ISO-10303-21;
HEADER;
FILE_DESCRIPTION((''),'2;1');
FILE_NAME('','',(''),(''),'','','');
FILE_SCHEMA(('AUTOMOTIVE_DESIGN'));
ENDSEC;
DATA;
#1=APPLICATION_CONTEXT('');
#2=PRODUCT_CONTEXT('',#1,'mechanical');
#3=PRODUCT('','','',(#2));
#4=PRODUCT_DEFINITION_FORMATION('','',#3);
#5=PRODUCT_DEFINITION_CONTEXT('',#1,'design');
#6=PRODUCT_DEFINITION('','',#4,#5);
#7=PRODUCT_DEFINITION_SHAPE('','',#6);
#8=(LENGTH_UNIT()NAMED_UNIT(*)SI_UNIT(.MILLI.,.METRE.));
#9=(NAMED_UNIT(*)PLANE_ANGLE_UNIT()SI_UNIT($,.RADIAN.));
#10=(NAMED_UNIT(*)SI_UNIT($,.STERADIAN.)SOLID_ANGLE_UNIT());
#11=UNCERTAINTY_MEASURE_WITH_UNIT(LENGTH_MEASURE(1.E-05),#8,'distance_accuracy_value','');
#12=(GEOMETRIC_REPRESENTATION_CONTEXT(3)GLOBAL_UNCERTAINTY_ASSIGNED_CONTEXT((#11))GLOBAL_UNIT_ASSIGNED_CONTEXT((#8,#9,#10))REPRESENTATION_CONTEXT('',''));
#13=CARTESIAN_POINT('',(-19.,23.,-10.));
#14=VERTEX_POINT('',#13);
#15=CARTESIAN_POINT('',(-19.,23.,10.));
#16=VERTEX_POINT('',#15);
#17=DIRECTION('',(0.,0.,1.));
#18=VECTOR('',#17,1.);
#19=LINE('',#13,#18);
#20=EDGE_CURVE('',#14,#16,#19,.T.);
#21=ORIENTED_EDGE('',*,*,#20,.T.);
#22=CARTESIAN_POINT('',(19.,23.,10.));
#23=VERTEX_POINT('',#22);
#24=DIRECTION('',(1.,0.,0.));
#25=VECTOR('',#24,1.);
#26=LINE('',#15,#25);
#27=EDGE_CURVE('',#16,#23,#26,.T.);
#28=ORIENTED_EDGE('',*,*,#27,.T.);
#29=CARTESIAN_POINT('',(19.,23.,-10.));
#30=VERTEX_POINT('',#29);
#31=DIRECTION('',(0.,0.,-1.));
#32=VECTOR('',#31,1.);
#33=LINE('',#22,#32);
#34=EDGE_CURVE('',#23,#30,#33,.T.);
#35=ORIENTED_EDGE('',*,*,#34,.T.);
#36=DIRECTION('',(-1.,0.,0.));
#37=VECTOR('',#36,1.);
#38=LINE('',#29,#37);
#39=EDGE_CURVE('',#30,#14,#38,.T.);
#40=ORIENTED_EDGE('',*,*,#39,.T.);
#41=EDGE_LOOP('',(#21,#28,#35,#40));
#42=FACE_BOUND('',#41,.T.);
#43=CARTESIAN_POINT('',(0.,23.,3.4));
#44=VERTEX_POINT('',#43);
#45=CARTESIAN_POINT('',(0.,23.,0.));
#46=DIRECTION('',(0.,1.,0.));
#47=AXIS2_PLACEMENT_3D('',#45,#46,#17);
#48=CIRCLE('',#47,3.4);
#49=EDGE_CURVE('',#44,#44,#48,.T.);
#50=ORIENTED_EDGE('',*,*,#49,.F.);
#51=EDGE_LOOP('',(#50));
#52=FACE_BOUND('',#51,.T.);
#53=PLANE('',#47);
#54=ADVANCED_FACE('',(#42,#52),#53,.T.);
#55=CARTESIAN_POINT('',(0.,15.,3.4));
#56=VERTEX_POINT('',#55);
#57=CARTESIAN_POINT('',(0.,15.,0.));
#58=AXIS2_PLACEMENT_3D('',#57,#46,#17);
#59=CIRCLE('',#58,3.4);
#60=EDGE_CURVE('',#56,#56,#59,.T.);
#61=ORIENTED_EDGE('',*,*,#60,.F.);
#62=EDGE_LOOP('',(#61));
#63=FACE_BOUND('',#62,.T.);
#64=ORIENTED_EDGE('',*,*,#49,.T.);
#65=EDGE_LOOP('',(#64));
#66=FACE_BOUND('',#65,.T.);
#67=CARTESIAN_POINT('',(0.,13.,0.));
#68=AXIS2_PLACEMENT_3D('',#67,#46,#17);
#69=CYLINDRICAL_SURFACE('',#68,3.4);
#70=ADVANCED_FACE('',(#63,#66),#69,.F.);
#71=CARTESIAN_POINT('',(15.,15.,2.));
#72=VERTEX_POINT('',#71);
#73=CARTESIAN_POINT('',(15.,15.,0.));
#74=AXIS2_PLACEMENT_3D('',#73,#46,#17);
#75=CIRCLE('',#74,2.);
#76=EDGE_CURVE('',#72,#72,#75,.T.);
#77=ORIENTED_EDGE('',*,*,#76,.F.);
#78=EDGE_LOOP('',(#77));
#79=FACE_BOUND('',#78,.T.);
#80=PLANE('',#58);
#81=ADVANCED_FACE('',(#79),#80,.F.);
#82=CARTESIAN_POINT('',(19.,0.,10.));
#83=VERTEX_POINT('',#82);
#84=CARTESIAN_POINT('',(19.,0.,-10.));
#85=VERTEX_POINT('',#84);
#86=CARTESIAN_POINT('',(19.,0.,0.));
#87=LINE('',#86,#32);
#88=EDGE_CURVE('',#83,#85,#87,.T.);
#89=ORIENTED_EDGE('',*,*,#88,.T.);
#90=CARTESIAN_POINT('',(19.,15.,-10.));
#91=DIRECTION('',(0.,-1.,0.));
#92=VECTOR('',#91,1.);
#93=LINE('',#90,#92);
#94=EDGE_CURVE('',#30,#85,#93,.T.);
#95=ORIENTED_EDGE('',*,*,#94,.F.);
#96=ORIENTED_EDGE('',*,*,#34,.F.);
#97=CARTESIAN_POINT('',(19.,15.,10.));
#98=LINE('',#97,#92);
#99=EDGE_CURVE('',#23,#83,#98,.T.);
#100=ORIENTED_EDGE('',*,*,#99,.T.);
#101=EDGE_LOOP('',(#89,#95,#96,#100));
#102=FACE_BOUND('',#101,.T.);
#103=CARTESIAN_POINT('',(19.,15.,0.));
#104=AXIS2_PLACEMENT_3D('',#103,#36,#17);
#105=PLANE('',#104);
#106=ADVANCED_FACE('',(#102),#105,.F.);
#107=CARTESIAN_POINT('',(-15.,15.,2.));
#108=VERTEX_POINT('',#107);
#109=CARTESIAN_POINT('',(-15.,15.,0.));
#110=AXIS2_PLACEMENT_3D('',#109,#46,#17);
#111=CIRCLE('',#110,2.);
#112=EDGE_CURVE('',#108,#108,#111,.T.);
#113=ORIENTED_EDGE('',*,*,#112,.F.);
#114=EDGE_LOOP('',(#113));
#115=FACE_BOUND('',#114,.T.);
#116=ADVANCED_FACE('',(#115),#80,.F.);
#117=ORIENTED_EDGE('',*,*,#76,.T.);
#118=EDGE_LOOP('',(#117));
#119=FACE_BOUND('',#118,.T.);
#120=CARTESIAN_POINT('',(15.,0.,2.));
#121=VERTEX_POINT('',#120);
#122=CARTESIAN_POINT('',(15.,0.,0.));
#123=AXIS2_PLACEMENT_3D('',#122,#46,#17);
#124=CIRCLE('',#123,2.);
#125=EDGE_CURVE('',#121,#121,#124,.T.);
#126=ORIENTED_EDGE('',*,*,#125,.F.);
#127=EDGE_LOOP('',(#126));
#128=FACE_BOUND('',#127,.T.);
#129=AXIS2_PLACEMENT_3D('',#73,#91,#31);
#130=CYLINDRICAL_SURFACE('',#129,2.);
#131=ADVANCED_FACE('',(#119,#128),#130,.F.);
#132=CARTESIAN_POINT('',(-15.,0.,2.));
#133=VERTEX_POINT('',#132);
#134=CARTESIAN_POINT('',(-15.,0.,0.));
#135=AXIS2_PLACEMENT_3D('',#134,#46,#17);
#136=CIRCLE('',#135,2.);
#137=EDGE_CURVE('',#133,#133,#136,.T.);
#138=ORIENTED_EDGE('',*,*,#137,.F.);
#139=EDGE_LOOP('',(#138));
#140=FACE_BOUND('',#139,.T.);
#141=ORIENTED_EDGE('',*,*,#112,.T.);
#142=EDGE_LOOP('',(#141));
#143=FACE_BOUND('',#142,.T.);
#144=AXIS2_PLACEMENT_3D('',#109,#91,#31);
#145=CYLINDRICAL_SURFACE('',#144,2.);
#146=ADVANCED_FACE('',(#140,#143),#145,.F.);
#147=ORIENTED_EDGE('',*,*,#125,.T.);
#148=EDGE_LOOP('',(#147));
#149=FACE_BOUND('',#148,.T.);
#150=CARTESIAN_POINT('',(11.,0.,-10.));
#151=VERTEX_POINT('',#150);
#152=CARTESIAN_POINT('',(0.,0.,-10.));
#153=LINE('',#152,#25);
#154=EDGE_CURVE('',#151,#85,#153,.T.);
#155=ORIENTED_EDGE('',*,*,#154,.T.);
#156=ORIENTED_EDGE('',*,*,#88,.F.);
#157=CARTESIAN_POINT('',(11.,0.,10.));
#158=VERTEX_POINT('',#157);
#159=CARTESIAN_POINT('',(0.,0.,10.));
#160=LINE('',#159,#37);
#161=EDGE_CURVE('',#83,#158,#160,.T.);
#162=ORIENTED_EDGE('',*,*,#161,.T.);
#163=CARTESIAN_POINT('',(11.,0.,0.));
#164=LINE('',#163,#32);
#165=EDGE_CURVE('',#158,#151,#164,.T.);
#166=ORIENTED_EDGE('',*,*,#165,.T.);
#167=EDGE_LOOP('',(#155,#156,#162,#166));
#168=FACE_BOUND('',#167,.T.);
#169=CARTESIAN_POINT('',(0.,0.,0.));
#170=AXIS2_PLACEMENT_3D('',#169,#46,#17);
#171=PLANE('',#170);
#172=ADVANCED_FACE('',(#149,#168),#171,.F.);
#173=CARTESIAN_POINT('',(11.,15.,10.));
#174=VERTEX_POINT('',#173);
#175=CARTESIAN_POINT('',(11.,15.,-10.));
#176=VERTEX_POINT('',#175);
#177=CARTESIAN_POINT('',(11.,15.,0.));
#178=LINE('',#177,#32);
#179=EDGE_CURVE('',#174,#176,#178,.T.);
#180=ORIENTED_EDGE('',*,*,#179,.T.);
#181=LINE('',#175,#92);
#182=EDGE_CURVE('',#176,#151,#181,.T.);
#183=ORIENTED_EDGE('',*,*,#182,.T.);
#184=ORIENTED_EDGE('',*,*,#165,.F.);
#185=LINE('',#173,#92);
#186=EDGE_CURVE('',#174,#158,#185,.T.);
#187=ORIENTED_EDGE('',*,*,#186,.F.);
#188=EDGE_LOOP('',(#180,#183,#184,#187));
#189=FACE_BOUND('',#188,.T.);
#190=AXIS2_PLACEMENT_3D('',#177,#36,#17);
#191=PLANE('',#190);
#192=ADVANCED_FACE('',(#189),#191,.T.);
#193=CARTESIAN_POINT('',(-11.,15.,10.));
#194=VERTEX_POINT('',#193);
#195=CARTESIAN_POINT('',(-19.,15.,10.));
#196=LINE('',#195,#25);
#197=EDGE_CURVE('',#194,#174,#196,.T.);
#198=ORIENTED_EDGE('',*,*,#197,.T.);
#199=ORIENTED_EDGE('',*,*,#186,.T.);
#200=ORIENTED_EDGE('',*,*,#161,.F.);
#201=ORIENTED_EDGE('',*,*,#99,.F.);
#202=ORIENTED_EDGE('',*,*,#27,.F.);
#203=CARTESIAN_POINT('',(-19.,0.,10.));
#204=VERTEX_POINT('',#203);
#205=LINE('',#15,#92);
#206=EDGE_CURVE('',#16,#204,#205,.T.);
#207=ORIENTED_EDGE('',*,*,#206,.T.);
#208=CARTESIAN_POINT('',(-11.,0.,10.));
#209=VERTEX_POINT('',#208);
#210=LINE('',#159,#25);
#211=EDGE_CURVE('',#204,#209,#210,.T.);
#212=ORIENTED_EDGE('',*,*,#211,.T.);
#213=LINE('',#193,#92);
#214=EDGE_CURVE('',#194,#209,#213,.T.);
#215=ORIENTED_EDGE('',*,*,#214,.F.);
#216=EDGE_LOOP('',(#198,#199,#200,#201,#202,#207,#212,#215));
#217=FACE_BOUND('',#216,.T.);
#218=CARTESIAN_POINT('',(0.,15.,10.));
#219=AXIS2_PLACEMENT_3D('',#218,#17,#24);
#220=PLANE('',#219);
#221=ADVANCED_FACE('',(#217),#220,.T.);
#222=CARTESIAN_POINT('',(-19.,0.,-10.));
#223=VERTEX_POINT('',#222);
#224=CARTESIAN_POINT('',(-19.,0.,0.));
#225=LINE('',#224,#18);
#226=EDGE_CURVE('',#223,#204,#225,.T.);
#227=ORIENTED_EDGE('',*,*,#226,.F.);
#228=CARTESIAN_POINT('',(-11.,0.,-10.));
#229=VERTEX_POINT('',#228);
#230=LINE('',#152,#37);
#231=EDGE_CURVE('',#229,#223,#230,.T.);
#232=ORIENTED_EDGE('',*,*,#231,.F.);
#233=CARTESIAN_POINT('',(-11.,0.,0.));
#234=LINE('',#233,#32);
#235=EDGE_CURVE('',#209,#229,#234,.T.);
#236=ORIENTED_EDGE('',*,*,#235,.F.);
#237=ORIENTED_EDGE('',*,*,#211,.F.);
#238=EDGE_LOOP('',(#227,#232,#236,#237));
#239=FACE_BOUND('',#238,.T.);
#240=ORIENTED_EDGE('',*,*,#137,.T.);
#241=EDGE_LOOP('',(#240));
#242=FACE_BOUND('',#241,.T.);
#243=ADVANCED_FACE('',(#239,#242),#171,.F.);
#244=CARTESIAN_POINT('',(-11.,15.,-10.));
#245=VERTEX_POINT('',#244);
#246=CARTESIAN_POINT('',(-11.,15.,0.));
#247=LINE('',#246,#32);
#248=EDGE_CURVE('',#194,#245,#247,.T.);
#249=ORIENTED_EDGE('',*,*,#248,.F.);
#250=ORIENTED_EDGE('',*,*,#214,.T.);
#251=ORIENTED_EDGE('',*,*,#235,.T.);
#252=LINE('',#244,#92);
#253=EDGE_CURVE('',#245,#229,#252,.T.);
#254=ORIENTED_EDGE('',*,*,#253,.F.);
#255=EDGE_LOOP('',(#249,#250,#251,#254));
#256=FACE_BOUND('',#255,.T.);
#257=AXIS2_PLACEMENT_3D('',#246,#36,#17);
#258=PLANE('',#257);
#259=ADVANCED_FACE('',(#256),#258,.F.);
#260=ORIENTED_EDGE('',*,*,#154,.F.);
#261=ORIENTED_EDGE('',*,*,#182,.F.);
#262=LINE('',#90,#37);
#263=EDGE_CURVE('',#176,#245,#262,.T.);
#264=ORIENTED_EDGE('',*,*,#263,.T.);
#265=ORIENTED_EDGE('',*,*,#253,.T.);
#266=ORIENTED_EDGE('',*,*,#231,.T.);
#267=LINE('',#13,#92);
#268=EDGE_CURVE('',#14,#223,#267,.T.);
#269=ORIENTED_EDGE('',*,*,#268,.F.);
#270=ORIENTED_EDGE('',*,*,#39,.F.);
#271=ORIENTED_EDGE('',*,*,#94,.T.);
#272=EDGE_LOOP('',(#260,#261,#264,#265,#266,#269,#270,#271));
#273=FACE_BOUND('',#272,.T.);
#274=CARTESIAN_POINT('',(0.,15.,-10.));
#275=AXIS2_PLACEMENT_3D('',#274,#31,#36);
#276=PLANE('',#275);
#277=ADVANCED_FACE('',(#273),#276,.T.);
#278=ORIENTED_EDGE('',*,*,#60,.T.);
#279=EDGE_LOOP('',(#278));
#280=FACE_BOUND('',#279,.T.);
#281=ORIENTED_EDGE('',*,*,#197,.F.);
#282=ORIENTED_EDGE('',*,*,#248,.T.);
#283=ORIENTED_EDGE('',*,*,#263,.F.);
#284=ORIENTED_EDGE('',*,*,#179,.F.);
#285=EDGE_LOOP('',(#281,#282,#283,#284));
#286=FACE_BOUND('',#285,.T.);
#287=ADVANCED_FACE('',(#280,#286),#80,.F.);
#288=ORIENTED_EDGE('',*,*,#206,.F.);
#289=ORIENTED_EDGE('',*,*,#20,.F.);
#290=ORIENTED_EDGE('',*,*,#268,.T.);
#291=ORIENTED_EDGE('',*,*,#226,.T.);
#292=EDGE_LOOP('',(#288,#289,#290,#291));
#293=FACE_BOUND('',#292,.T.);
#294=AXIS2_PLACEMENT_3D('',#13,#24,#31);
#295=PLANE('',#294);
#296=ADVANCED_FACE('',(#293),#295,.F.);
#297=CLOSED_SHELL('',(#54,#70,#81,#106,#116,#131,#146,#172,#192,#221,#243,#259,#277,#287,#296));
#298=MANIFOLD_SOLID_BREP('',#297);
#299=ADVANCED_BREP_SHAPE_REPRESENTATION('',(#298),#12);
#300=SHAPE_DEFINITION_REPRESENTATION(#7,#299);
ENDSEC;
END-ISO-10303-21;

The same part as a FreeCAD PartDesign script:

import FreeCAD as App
import Part
import Sketcher

V = App.Vector
Q = App.Units.Quantity

doc = App.newDocument("Part")
body = doc.addObject("PartDesign::Body", "Body")
body.AllowCompound = True

# Sketch on XZ plane
sketch1 = doc.addObject("Sketcher::SketchObject", "Sketch")
body.addObject(sketch1)
sketch1.AttachmentSupport = (doc.XZ_Plane, [""])
sketch1.MapMode = "FlatFace"
sketch1.addGeometry(Part.LineSegment(V(11, -10, 0), V(11, 10, 0)), False)
sketch1.addGeometry(Part.LineSegment(V(11, 10, 0), V(19, 10, 0)), False)
sketch1.addGeometry(Part.LineSegment(V(19, 10, 0), V(19, -10, 0)), False)
sketch1.addGeometry(Part.LineSegment(V(19, -10, 0), V(11, -10, 0)), False)
sketch1.addGeometry(Part.LineSegment(V(-19, 10, 0), V(-11, 10, 0)), False)
sketch1.addGeometry(Part.LineSegment(V(-11, 10, 0), V(-11, -10, 0)), False)
sketch1.addGeometry(Part.LineSegment(V(-11, -10, 0), V(-19, -10, 0)), False)
sketch1.addGeometry(Part.LineSegment(V(-19, -10, 0), V(-19, 10, 0)), False)
sketch1.addConstraint(Sketcher.Constraint("Coincident", 0, 2, 1, 1))
sketch1.addConstraint(Sketcher.Constraint("Coincident", 1, 2, 2, 1))
sketch1.addConstraint(Sketcher.Constraint("Coincident", 2, 2, 3, 1))
sketch1.addConstraint(Sketcher.Constraint("Coincident", 3, 2, 0, 1))
sketch1.addConstraint(Sketcher.Constraint("Coincident", 4, 2, 5, 1))
sketch1.addConstraint(Sketcher.Constraint("Coincident", 5, 2, 6, 1))
sketch1.addConstraint(Sketcher.Constraint("Coincident", 6, 2, 7, 1))
sketch1.addConstraint(Sketcher.Constraint("Coincident", 7, 2, 4, 1))
sketch1.addConstraint(Sketcher.Constraint("Vertical", 0))
sketch1.addConstraint(Sketcher.Constraint("Horizontal", 1))
sketch1.addConstraint(Sketcher.Constraint("Vertical", 2))
sketch1.addConstraint(Sketcher.Constraint("Horizontal", 3))
sketch1.addConstraint(Sketcher.Constraint("Horizontal", 4))
sketch1.addConstraint(Sketcher.Constraint("Vertical", 5))
sketch1.addConstraint(Sketcher.Constraint("Horizontal", 6))
sketch1.addConstraint(Sketcher.Constraint("Vertical", 7))
sketch1.addConstraint(Sketcher.Constraint("Symmetric", 3, 2, 4, 2, -1, 1))
sketch1.addConstraint(Sketcher.Constraint("Symmetric", 1, 2, 6, 2, -1, 1))
sketch1.addConstraint(Sketcher.Constraint("Horizontal", 1, 2, 4, 2))
sketch1.addConstraint(Sketcher.Constraint("DistanceX", 1, 1, 1, 2, Q("8 mm")))
sketch1.addConstraint(Sketcher.Constraint("DistanceY", 0, 1, 0, 2, Q("20 mm")))
sketch1.addConstraint(Sketcher.Constraint("DistanceX", -1, 1, 0, 2, Q("11 mm")))
pad1 = doc.addObject("PartDesign::Pad", "Pad")
body.addObject(pad1)
pad1.Profile = sketch1
pad1.Length = 15
pad1.Reversed = True

# Sketch on XZ plane
sketch2 = doc.addObject("Sketcher::SketchObject", "Sketch001")
body.addObject(sketch2)
sketch2.AttachmentSupport = (doc.XZ_Plane, [""])
sketch2.MapMode = "FlatFace"
sketch2.AttachmentOffset = App.Placement(V(0, 0, -15), App.Rotation())
sketch2.addGeometry(Part.LineSegment(V(-19, -10, 0), V(-19, 10, 0)), False)
sketch2.addGeometry(Part.LineSegment(V(-19, 10, 0), V(19, 10, 0)), False)
sketch2.addGeometry(Part.LineSegment(V(19, 10, 0), V(19, -10, 0)), False)
sketch2.addGeometry(Part.LineSegment(V(19, -10, 0), V(-19, -10, 0)), False)
sketch2.addConstraint(Sketcher.Constraint("Coincident", 0, 2, 1, 1))
sketch2.addConstraint(Sketcher.Constraint("Coincident", 1, 2, 2, 1))
sketch2.addConstraint(Sketcher.Constraint("Coincident", 2, 2, 3, 1))
sketch2.addConstraint(Sketcher.Constraint("Coincident", 3, 2, 0, 1))
sketch2.addConstraint(Sketcher.Constraint("Vertical", 0))
sketch2.addConstraint(Sketcher.Constraint("Horizontal", 1))
sketch2.addConstraint(Sketcher.Constraint("Vertical", 2))
sketch2.addConstraint(Sketcher.Constraint("Horizontal", 3))
sketch2.addConstraint(Sketcher.Constraint("Symmetric", 0, 2, 2, 2, -1, 1))
sketch2.addConstraint(Sketcher.Constraint("DistanceX", 1, 1, 1, 2, Q("38 mm")))
sketch2.addConstraint(Sketcher.Constraint("DistanceY", 0, 1, 0, 2, Q("20 mm")))
pad2 = doc.addObject("PartDesign::Pad", "Pad001")
body.addObject(pad2)
pad2.Profile = sketch2
pad2.Length = 8
pad2.Reversed = True

# Sketch on XZ plane
sketch3 = doc.addObject("Sketcher::SketchObject", "Sketch002")
body.addObject(sketch3)
sketch3.AttachmentSupport = (doc.XZ_Plane, [""])
sketch3.MapMode = "FlatFace"
sketch3.AttachmentOffset = App.Placement(V(0, 0, -23), App.Rotation())
sketch3.addGeometry(Part.Circle(V(0, 0, 0), V(0, 0, 1), 3.4), False)
sketch3.addConstraint(Sketcher.Constraint("Coincident", 0, 3, -1, 1))
sketch3.addConstraint(Sketcher.Constraint("Diameter", 0, Q("6.8 mm")))
pocket1 = doc.addObject("PartDesign::Pocket", "Pocket")
body.addObject(pocket1)
pocket1.Profile = sketch3
pocket1.Length = 10
pocket1.Reversed = True

# Sketch on XZ plane
sketch4 = doc.addObject("Sketcher::SketchObject", "Sketch003")
body.addObject(sketch4)
sketch4.AttachmentSupport = (doc.XZ_Plane, [""])
sketch4.MapMode = "FlatFace"
sketch4.addGeometry(Part.Circle(V(-15, 0, 0), V(0, 0, 1), 2), False)
sketch4.addGeometry(Part.Circle(V(15, 0, 0), V(0, 0, 1), 2), False)
sketch4.addConstraint(Sketcher.Constraint("Equal", 0, 1))
sketch4.addConstraint(Sketcher.Constraint("Symmetric", 0, 3, 1, 3, -1, 1))
sketch4.addConstraint(Sketcher.Constraint("PointOnObject", 0, 3, -1))
sketch4.addConstraint(Sketcher.Constraint("Diameter", 0, Q("4 mm")))
sketch4.addConstraint(Sketcher.Constraint("DistanceX", 0, 3, -1, 1, Q("15 mm")))
pocket2 = doc.addObject("PartDesign::Pocket", "Pocket001")
body.addObject(pocket2)
pocket2.Profile = sketch4
pocket2.Length = 15

doc.recompute()
